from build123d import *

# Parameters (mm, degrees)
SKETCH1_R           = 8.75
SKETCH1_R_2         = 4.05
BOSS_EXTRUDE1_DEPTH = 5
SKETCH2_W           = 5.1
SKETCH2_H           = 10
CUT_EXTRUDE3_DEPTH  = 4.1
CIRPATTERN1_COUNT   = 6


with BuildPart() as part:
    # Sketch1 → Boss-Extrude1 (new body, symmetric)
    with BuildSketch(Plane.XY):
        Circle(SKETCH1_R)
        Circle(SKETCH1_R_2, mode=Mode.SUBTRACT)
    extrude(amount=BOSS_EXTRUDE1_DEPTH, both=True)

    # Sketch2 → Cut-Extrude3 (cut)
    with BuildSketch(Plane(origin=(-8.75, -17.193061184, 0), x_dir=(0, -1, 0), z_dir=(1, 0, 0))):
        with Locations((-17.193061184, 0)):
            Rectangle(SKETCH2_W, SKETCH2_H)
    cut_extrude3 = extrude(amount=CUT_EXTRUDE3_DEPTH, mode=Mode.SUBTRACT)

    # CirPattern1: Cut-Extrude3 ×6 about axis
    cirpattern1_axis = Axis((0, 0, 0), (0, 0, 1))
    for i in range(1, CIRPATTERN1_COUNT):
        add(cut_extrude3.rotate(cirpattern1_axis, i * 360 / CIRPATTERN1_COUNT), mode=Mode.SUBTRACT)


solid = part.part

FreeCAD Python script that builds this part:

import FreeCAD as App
import Part
import Sketcher
from FreeCAD import Vector
Q = App.Units.Quantity

doc = App.newDocument("Part")
body = doc.addObject("PartDesign::Body", "Body")

sketch1 = body.newObject("Sketcher::SketchObject", "Sketch")
sketch1.AttachmentSupport = (doc.getObject("XY_Plane"), [""])
sketch1.MapMode = "FlatFace"
sketch1.addGeometry([
    Part.Circle(Vector(0, 0, 0), Vector(0, 0, 1), 8.8),
    Part.Circle(Vector(0, 0, 0), Vector(0, 0, 1), 4),
], False)
sketch1.addConstraint([
    Sketcher.Constraint("Coincident", 0, 3, -1, 1),
    Sketcher.Constraint("Coincident", 1, 3, -1, 1),
    Sketcher.Constraint("Diameter", 0, Q("17.5 mm")),
    Sketcher.Constraint("Diameter", 1, Q("8.1 mm")),
])
pad1 = body.newObject("PartDesign::Pad", "Pad")
pad1.Profile = sketch1
pad1.Length = 10
pad1.Midplane = True

sketch2 = body.newObject("Sketcher::SketchObject", "Sketch001")
sketch2.AttachmentSupport = (doc.getObject("YZ_Plane"), [""])
sketch2.MapMode = "FlatFace"
sketch2.AttachmentOffset = App.Placement(Vector(0, 0, -8.75), App.Rotation())
sketch2.addGeometry([
    Part.LineSegment(Vector(3, -5, 0), Vector(3, 5, 0)),
    Part.LineSegment(Vector(3, 5, 0), Vector(-3, 5, 0)),
    Part.LineSegment(Vector(-3, 5, 0), Vector(-3, -5, 0)),
    Part.LineSegment(Vector(-3, -5, 0), Vector(3, -5, 0)),
], False)
sketch2.addConstraint([
    Sketcher.Constraint("Coincident", 0, 2, 1, 1),
    Sketcher.Constraint("Coincident", 1, 2, 2, 1),
    Sketcher.Constraint("Coincident", 2, 2, 3, 1),
    Sketcher.Constraint("Coincident", 3, 2, 0, 1),
    Sketcher.Constraint("Vertical", 0),
    Sketcher.Constraint("Horizontal", 1),
    Sketcher.Constraint("Vertical", 2),
    Sketcher.Constraint("Horizontal", 3),
    Sketcher.Constraint("Symmetric", 0, 2, 2, 2, -1, 1),
    Sketcher.Constraint("DistanceY", 0, 1, 0, 2, Q("10 mm")),
    Sketcher.Constraint("DistanceX", 1, 2, 1, 1, Q("5.1 mm")),
])
pocket1 = body.newObject("PartDesign::Pocket", "Pocket")
pocket1.Profile = sketch2
pocket1.Length = 4.1
pocket1.Reversed = True
doc.recompute()

polarpattern = body.newObject("PartDesign::PolarPattern", "PolarPattern")
polarpattern.Originals = [pocket1]
polarpattern.Axis = (doc.getObject("Z_Axis"), [""])
polarpattern.Angle = 360
polarpattern.Occurrences = 6
body.Tip = polarpattern

doc.recompute()
